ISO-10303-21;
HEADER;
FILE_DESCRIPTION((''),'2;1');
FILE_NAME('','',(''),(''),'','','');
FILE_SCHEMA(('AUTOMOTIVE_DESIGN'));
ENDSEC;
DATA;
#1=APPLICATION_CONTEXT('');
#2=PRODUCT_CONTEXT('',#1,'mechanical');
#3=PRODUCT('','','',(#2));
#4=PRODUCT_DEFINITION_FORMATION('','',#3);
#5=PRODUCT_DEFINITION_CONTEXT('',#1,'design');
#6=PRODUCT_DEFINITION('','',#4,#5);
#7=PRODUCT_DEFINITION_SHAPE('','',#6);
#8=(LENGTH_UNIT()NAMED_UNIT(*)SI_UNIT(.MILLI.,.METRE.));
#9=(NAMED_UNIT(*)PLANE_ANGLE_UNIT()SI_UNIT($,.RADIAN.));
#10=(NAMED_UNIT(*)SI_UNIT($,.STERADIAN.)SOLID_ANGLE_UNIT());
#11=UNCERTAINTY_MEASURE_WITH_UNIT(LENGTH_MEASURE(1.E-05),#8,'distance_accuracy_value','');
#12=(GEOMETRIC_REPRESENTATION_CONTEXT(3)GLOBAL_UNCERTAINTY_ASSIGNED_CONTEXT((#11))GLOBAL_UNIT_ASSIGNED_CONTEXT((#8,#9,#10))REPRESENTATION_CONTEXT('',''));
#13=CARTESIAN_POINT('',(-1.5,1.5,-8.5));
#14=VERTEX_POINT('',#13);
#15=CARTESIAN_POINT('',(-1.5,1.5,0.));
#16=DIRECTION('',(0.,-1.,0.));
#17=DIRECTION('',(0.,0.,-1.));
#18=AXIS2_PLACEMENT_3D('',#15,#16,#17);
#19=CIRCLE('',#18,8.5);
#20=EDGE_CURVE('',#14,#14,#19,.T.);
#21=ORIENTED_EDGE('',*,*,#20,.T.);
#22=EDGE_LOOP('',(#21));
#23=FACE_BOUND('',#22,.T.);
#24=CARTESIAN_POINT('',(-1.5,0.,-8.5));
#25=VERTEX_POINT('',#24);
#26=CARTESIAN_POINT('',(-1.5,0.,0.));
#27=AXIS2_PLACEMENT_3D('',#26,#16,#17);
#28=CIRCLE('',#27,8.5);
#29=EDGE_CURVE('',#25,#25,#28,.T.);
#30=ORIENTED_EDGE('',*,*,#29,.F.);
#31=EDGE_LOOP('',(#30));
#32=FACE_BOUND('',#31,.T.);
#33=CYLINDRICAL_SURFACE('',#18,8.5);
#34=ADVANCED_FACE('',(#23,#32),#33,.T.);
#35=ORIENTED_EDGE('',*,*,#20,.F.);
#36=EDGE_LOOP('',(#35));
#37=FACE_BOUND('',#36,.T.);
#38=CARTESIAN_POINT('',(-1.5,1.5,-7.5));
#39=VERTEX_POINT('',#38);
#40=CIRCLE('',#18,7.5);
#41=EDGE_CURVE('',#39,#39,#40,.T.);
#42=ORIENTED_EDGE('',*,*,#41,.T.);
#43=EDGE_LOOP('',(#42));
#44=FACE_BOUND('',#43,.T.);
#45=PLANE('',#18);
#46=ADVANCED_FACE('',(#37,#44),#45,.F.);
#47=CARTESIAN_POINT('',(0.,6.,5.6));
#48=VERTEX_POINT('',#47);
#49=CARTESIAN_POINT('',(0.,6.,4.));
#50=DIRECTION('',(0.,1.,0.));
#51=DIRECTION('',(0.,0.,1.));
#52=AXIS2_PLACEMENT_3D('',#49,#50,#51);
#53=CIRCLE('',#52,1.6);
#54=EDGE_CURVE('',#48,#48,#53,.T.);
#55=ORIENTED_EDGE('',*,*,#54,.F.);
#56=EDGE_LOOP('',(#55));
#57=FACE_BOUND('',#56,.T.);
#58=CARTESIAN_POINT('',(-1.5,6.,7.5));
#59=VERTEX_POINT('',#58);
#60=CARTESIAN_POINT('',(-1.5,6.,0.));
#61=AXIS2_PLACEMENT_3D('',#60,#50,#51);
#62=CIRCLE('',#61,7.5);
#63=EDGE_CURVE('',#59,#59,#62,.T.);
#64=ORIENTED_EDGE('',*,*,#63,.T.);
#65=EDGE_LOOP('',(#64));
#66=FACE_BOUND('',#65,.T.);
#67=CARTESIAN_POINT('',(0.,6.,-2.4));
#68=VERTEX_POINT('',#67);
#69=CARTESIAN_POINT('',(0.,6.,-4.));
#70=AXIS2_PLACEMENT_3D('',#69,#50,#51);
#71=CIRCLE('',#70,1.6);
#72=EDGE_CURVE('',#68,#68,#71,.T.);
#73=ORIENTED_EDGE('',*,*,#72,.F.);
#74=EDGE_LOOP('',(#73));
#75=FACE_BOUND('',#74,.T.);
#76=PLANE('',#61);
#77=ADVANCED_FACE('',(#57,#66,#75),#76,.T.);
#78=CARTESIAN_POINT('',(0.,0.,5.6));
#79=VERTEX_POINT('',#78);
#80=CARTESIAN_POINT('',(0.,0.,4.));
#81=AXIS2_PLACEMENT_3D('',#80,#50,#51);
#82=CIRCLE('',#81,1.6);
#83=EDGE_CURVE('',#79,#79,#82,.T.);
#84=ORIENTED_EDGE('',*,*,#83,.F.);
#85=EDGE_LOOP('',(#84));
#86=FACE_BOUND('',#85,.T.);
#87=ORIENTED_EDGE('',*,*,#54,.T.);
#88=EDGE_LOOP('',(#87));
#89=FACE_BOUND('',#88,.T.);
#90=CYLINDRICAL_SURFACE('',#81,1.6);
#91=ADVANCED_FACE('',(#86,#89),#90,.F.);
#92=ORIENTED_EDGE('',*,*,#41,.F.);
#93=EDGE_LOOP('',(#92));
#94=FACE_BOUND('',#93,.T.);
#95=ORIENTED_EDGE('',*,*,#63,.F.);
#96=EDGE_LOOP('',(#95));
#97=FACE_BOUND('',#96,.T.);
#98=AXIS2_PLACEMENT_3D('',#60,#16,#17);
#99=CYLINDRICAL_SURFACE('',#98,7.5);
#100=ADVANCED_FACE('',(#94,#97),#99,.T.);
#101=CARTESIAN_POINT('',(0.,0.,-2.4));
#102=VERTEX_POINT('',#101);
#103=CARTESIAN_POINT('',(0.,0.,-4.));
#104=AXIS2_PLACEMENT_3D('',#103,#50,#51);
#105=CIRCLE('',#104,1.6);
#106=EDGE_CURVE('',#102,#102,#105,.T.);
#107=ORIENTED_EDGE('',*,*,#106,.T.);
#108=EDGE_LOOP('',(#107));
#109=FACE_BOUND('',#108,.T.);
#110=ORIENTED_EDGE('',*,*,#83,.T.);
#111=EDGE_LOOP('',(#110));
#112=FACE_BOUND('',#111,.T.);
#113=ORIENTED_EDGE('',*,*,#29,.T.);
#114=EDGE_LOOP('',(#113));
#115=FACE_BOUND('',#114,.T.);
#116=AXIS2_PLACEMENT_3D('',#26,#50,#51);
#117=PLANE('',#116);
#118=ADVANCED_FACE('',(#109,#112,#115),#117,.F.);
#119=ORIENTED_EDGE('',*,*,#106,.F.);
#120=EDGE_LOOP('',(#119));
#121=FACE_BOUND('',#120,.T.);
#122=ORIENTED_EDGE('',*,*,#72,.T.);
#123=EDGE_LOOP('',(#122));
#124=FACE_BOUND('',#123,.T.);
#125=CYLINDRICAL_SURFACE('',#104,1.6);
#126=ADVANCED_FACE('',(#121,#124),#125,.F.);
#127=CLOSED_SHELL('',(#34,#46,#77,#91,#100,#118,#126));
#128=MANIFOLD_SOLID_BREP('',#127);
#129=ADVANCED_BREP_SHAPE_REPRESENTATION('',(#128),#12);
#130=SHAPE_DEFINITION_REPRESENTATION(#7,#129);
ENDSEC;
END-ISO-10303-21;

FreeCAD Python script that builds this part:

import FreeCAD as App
import Part
import Sketcher

doc = App.newDocument("Part")
body = doc.addObject("PartDesign::Body", "Body")

sketch1 = body.newObject("Sketcher::SketchObject", "Sketch")
sketch1.AttachmentSupport = (doc.getObject("XZ_Plane"), [""])
sketch1.MapMode = "FlatFace"
sketch1.addGeometry(Part.Circle(App.Vector(-2, 0, 0), App.Vector(0, 0, 1), 8), False)
sketch1.addConstraint(Sketcher.Constraint("PointOnObject", 0, 3, -1))
sketch1.addConstraint(Sketcher.Constraint("Diameter", 0, 15.0))
sketch1.addConstraint(Sketcher.Constraint("DistanceX", 0, 3, -1, 1, 1.5))
pad1 = body.newObject("PartDesign::Pad", "Pad")
pad1.Profile = sketch1
pad1.Length = 6
pad1.Reversed = True

sketch2 = body.newObject("Sketcher::SketchObject", "Sketch001")
sketch2.AttachmentSupport = (doc.getObject("XZ_Plane"), [""])
sketch2.MapMode = "FlatFace"
sketch2.addGeometry(Part.Circle(App.Vector(-2, 0, 0), App.Vector(0, 0, 1), 8), False)
sketch2.addConstraint(Sketcher.Constraint("PointOnObject", 0, 3, -1))
sketch2.addConstraint(Sketcher.Constraint("Diameter", 0, 17.0))
sketch2.addConstraint(Sketcher.Constraint("DistanceX", 0, 3, -1, 1, 1.5))
pad2 = body.newObject("PartDesign::Pad", "Pad001")
pad2.Profile = sketch2
pad2.Length = 1.5
pad2.Reversed = True

sketch3 = body.newObject("Sketcher::SketchObject", "Sketch002")
sketch3.AttachmentSupport = (doc.getObject("XZ_Plane"), [""])
sketch3.MapMode = "FlatFace"
sketch3.AttachmentOffset = App.Placement(App.Vector(0, 0, -6), App.Rotation())
sketch3.addGeometry(Part.Circle(App.Vector(0, -4, 0), App.Vector(0, 0, 1), 1.6), False)
sketch3.addGeometry(Part.Circle(App.Vector(0, 4, 0), App.Vector(0, 0, 1), 1.6), False)
sketch3.addConstraint(Sketcher.Constraint("Equal", 0, 1))
sketch3.addConstraint(Sketcher.Constraint("Symmetric", 0, 3, 1, 3, -1, 1))
sketch3.addConstraint(Sketcher.Constraint("PointOnObject", 0, 3, -2))
sketch3.addConstraint(Sketcher.Constraint("Diameter", 0, 3.2))
sketch3.addConstraint(Sketcher.Constraint("DistanceY", 0, 3, -1, 1, 4.0))
pocket1 = body.newObject("PartDesign::Pocket", "Pocket")
pocket1.Profile = sketch3
pocket1.Type = "ThroughAll"
pocket1.Reversed = True

doc.recompute()
